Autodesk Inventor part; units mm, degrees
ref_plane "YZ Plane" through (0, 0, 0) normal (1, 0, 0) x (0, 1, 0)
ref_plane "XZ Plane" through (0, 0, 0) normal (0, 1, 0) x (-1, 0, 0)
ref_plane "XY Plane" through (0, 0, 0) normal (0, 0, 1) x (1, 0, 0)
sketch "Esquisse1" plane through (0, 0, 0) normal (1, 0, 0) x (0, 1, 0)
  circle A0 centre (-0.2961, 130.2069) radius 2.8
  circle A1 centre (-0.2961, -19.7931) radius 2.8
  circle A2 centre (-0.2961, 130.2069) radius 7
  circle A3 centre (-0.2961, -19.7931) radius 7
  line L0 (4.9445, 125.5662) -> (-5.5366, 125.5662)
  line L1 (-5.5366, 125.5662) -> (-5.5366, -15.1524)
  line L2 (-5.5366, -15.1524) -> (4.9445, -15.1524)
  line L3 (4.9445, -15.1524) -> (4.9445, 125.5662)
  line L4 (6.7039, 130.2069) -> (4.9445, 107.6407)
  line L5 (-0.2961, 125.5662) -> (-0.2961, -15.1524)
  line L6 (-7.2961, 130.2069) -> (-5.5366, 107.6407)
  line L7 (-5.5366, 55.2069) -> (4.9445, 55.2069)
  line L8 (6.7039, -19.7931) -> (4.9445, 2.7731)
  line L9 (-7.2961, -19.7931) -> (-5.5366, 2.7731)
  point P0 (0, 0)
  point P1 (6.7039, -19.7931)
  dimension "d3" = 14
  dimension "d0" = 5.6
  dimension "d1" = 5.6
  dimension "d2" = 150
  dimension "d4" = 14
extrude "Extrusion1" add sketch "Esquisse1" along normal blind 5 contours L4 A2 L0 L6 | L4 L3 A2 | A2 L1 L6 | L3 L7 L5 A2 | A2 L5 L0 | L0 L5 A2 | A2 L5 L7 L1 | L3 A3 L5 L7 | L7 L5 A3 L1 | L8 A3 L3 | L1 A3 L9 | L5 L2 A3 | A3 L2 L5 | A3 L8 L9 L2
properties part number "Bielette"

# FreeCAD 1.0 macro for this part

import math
import FreeCAD as App
import Part
import Sketcher
from FreeCAD import Vector
Q = App.Units.Quantity

doc = App.newDocument("Part")
body = doc.addObject("PartDesign::Body", "Body")

# Sketch on YZ plane
sketch1 = body.newObject("Sketcher::SketchObject", "Sketch")
sketch1.AttachmentSupport = (doc.getObject("YZ_Plane"), [""])
sketch1.MapMode = "FlatFace"
sketch1.addGeometry([
    Part.ArcOfCircle(Part.Circle(Vector(-0.2961, 130.2069, 0), Vector(0, 0, 1), 7), math.radians(0), math.radians(180)),  # 0
    Part.LineSegment(Vector(-7.2961, 130.2069, 0), Vector(-5.5366, 107.6407, 0)),  # 1
    Part.LineSegment(Vector(-5.5366, 107.6407, 0), Vector(-5.5366, 2.7731, 0)),  # 2
    Part.LineSegment(Vector(-5.5366, 2.7731, 0), Vector(-7.2961, -19.7931, 0)),  # 3
    Part.ArcOfCircle(Part.Circle(Vector(-0.2961, -19.7931, 0), Vector(0, 0, 1), 7), math.radians(180), math.radians(360)),  # 4
    Part.LineSegment(Vector(6.7039, -19.7931, 0), Vector(4.9445, 2.7731, 0)),  # 5
    Part.LineSegment(Vector(4.9445, 2.7731, 0), Vector(4.9445, 107.6407, 0)),  # 6
    Part.LineSegment(Vector(4.9445, 107.6407, 0), Vector(6.7039, 130.2069, 0)),  # 7
    Part.Circle(Vector(-0.2961, 130.2069, 0), Vector(0, 0, 1), 2.8),  # 8
    Part.Circle(Vector(-0.2961, -19.7931, 0), Vector(0, 0, 1), 2.8),  # 9
], False)
sketch1.addConstraint([
    Sketcher.Constraint("Coincident", 0, 2, 1, 1),
    Sketcher.Constraint("Coincident", 1, 2, 2, 1),
    Sketcher.Constraint("Coincident", 2, 2, 3, 1),
    Sketcher.Constraint("Coincident", 3, 2, 4, 1),
    Sketcher.Constraint("Coincident", 4, 2, 5, 1),
    Sketcher.Constraint("Coincident", 5, 2, 6, 1),
    Sketcher.Constraint("Coincident", 6, 2, 7, 1),
    Sketcher.Constraint("Coincident", 7, 2, 0, 1),
    Sketcher.Constraint("Vertical", 2),
    Sketcher.Constraint("Vertical", 6),
    Sketcher.Constraint("Coincident", 8, 3, 0, 3),
    Sketcher.Constraint("Coincident", 9, 3, 4, 3),
    Sketcher.Constraint("Equal", 0, 4),
    Sketcher.Constraint("Equal", 8, 9),
    Sketcher.Constraint("Parallel", 1, 5),
    Sketcher.Constraint("Parallel", 3, 7),
    Sketcher.Constraint("Horizontal", 8, 3, 0, 2),
    Sketcher.Constraint("Horizontal", 9, 3, 3, 2),
    Sketcher.Constraint("Horizontal", 3, 2, 4, 2),
    Sketcher.Constraint("Horizontal", 2, 2, 5, 2),
    Sketcher.Constraint("Horizontal", 1, 2, 6, 2),
    Sketcher.Constraint("Horizontal", 0, 2, 7, 2),
    Sketcher.Constraint("Vertical", 0, 3, 4, 3),
    Sketcher.Constraint("Radius", 0, Q("7 mm")),
    Sketcher.Constraint("Diameter", 8, Q("5.6 mm")),
    Sketcher.Constraint("DistanceY", 4, 3, 0, 3, Q("150 mm")),
    Sketcher.Constraint("DistanceY", 2, 2, 2, 1, Q("104.8676 mm")),
    Sketcher.Constraint("DistanceX", 0, 3, -1, 1, Q("0.296 mm")),
    Sketcher.Constraint("DistanceY", -1, 1, 0, 3, Q("130.207 mm")),
    Sketcher.Constraint("DistanceX", 2, 2, 5, 2, Q("10.481 mm")),
])
pad1 = body.newObject("PartDesign::Pad", "Pad")
pad1.Profile = sketch1
pad1.Length = 5

doc.recompute()
